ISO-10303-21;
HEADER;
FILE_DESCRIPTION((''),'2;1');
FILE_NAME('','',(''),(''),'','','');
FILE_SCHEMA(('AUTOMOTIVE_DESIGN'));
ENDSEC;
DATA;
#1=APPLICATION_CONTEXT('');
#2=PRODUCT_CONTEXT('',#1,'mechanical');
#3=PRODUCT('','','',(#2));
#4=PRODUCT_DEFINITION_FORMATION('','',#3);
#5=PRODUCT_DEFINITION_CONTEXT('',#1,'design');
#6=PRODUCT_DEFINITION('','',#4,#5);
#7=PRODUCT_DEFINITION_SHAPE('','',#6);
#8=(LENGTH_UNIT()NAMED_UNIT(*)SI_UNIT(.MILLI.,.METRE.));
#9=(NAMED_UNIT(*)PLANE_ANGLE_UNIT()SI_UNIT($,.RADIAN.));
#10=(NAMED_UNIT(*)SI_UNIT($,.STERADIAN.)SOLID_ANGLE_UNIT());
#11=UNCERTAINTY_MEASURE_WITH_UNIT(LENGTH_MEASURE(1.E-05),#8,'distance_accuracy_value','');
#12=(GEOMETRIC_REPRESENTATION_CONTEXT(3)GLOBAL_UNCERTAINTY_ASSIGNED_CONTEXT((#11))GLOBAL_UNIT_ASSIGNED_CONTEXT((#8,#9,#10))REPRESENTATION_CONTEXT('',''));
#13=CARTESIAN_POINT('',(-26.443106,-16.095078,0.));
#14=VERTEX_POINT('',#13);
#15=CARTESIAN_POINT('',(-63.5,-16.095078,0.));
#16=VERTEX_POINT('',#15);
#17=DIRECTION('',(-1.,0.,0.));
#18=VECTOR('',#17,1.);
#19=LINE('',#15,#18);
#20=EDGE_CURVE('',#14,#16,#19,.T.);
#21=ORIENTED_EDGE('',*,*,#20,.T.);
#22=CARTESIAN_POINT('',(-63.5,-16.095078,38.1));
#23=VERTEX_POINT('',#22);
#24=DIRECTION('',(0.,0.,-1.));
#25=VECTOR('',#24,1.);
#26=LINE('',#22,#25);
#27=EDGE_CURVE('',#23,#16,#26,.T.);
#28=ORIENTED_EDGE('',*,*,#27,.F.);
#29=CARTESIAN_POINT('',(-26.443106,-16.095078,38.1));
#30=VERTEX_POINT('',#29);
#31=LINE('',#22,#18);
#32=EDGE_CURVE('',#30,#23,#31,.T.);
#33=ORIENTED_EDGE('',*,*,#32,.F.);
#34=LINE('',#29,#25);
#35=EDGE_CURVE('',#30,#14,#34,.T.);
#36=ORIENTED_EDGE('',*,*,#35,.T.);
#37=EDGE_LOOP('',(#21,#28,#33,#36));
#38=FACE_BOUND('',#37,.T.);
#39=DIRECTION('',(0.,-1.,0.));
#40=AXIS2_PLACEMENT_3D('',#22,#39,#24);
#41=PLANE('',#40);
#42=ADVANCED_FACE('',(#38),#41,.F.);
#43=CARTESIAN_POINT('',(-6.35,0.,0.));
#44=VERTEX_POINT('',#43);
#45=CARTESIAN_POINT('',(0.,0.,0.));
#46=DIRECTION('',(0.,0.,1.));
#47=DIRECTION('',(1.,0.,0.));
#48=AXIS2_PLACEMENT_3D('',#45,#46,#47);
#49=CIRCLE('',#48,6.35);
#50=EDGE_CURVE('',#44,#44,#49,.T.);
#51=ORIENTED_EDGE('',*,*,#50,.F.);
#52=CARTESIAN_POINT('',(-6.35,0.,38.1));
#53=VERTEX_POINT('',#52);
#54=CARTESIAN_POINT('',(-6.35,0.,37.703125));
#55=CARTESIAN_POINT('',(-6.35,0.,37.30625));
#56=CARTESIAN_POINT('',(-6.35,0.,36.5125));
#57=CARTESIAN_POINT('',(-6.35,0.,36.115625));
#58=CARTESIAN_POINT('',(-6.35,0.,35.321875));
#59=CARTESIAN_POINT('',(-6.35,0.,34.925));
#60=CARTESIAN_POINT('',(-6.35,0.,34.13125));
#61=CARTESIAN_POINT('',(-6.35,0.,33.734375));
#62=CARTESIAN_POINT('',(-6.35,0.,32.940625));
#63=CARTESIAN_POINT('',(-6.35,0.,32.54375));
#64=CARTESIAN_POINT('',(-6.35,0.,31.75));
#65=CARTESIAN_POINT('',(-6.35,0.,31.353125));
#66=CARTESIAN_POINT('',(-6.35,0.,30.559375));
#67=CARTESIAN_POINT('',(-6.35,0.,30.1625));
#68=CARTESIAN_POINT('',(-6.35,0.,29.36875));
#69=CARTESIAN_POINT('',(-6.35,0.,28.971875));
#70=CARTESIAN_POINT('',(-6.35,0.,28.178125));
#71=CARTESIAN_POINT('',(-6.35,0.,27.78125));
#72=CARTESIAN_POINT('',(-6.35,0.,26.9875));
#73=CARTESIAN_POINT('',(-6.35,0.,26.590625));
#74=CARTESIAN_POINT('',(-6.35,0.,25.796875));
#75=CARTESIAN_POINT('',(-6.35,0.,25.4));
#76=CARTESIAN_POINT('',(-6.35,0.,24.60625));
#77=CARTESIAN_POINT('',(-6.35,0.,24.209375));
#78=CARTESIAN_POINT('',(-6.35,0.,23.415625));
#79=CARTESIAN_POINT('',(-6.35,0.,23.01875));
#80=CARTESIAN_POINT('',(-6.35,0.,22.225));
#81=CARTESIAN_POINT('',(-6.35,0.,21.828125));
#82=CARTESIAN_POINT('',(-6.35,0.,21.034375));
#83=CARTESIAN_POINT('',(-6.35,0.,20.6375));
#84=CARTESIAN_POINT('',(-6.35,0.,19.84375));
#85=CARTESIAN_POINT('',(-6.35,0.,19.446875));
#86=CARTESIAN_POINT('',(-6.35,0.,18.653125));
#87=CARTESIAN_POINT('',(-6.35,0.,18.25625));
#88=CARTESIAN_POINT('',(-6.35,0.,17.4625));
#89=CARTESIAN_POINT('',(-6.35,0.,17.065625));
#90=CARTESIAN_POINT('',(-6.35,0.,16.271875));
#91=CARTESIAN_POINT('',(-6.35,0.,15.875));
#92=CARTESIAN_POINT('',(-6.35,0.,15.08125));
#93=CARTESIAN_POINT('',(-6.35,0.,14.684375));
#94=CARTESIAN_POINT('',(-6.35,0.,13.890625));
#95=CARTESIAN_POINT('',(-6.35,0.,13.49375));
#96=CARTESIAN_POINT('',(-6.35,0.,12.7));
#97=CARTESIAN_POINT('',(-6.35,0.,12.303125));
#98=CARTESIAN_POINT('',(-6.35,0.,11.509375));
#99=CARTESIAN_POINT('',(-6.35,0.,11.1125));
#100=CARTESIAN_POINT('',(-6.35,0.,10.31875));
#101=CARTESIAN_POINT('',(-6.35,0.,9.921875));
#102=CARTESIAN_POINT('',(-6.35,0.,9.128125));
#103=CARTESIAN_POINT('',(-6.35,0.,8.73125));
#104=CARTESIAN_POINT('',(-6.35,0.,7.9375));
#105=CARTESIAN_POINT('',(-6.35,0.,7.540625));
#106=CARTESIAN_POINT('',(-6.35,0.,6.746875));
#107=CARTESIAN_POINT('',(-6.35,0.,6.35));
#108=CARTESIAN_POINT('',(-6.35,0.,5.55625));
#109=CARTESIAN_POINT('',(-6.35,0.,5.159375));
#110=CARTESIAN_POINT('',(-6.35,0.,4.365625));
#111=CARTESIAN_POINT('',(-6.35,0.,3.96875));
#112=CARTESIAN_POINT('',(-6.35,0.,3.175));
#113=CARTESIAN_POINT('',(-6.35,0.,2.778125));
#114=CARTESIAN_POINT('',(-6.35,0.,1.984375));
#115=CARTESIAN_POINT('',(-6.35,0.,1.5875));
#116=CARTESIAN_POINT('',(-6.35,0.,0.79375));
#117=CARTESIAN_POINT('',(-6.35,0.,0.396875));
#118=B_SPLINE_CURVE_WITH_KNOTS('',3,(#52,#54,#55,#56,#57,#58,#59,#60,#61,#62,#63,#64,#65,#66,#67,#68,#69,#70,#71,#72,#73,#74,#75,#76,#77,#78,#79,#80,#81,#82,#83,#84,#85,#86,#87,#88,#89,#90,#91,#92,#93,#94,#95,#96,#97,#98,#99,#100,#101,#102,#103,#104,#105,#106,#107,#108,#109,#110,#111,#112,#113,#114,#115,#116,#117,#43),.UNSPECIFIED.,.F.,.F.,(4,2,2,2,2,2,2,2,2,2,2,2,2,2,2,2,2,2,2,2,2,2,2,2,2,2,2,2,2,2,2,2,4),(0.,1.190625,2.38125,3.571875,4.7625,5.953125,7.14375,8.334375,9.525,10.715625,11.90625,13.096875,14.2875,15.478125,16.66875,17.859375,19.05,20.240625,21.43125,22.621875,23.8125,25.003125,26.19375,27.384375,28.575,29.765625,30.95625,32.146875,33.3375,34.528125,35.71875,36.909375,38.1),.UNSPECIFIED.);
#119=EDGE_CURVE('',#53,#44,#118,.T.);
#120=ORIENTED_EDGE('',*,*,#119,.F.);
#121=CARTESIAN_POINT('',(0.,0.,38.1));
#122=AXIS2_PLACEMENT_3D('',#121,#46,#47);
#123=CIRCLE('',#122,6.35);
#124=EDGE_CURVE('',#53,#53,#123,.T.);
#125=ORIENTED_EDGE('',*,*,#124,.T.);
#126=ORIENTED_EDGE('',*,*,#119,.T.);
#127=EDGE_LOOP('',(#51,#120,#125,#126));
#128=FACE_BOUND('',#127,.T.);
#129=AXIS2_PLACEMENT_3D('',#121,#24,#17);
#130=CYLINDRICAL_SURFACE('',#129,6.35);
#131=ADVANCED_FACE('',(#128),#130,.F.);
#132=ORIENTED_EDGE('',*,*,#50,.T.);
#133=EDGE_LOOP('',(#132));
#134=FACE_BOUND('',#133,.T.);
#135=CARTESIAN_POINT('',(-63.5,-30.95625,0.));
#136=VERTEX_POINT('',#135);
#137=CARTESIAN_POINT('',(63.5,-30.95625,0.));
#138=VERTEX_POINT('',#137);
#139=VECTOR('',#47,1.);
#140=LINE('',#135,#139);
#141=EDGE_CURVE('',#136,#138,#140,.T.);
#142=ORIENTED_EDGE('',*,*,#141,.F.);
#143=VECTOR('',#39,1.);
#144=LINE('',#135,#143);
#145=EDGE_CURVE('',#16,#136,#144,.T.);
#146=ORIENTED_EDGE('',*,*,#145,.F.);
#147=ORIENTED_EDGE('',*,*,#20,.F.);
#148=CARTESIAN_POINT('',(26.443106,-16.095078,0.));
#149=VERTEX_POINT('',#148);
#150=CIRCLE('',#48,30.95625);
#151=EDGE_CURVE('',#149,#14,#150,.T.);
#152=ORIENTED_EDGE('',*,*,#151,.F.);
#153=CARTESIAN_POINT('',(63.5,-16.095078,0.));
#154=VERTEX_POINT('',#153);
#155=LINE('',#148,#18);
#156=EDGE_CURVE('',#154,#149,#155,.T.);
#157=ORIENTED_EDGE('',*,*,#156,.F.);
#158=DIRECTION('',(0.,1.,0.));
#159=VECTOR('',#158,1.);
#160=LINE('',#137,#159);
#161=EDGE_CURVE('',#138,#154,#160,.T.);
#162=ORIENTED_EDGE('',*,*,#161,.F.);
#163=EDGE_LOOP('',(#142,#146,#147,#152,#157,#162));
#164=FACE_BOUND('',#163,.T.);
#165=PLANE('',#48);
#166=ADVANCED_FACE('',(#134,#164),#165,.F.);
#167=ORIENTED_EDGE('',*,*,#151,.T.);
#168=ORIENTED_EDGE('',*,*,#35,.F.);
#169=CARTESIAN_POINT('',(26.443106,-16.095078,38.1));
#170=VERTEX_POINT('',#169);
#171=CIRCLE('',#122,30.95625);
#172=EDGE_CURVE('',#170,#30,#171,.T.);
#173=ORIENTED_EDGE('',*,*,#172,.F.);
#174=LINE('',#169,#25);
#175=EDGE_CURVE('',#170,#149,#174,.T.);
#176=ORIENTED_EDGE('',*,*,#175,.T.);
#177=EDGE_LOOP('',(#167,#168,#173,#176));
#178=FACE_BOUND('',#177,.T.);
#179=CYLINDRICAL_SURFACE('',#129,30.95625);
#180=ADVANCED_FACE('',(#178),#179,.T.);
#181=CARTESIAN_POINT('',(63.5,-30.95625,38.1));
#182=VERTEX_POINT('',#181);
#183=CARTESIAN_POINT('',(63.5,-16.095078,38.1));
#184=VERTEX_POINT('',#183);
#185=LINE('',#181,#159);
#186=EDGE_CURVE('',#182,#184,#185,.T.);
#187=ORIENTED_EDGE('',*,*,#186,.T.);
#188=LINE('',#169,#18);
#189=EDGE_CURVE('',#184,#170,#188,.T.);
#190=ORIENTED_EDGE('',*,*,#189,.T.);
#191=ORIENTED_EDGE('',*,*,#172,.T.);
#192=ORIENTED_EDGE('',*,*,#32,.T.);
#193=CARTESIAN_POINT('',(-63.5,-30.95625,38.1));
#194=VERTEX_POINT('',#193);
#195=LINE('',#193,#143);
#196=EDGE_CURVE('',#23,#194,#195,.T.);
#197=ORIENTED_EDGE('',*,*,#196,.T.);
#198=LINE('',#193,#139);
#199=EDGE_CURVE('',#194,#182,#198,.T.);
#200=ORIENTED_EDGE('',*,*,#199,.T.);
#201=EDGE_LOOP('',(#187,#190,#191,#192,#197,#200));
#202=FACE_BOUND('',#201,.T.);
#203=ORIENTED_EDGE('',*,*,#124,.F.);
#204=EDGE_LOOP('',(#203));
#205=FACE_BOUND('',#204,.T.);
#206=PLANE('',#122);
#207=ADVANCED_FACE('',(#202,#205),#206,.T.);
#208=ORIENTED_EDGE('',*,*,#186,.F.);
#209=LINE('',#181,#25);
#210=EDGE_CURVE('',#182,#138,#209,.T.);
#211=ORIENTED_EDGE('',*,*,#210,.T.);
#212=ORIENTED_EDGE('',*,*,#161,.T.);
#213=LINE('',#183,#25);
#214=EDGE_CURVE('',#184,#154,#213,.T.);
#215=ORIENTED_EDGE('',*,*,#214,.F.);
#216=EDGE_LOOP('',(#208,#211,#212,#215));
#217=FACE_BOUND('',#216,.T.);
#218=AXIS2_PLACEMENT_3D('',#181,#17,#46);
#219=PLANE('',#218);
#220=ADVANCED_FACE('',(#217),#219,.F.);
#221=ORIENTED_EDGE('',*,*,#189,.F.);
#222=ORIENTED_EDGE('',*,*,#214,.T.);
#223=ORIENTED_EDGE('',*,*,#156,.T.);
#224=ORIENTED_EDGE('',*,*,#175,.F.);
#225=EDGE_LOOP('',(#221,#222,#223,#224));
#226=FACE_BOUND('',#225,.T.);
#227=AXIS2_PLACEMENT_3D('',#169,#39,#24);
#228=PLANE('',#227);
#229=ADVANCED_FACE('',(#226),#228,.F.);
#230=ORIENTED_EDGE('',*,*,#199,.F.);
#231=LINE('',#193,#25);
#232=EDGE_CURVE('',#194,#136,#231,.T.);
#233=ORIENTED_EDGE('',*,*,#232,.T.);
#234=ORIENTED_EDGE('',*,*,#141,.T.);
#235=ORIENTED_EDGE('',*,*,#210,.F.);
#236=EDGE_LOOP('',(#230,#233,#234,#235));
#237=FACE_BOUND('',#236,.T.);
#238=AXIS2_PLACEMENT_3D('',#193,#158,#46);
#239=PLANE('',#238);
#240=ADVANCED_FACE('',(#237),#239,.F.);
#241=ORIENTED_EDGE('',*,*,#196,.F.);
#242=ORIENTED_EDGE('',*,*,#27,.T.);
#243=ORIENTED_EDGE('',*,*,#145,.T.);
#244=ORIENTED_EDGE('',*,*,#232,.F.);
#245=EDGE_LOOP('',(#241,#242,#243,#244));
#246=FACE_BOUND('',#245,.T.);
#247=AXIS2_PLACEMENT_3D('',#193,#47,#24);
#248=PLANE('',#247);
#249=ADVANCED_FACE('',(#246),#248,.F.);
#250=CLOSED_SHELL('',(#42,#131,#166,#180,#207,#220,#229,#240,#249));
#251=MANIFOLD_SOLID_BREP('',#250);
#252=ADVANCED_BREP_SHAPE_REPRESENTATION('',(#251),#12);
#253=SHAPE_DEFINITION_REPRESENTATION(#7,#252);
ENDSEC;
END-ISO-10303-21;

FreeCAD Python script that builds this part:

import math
import FreeCAD as App
import Part
import Sketcher

V = App.Vector
Q = App.Units.Quantity

doc = App.newDocument("Part")
body = doc.addObject("PartDesign::Body", "Body")

sketch1 = body.newObject("Sketcher::SketchObject", "Sketch")
sketch1.AttachmentSupport = (doc.getObject("XY_Plane"), [""])
sketch1.MapMode = "FlatFace"
sketch1.addGeometry(Part.LineSegment(V(64, -16, 0), V(26, -16, 0)), False)
sketch1.addGeometry(Part.ArcOfCircle(Part.Circle(V(0, 0, 0), V(0, 0, 1), 31), math.radians(-31), math.radians(211)), False)
sketch1.addGeometry(Part.LineSegment(V(-26, -16, 0), V(-64, -16, 0)), False)
sketch1.addGeometry(Part.LineSegment(V(-64, -16, 0), V(-64, -31, 0)), False)
sketch1.addGeometry(Part.LineSegment(V(-64, -31, 0), V(64, -31, 0)), False)
sketch1.addGeometry(Part.LineSegment(V(64, -31, 0), V(64, -16, 0)), False)
sketch1.addGeometry(Part.Circle(V(0, 0, 0), V(0, 0, 1), 6), False)
sketch1.addConstraint(Sketcher.Constraint("Coincident", 0, 2, 1, 1))
sketch1.addConstraint(Sketcher.Constraint("Coincident", 1, 2, 2, 1))
sketch1.addConstraint(Sketcher.Constraint("Coincident", 2, 2, 3, 1))
sketch1.addConstraint(Sketcher.Constraint("Coincident", 3, 2, 4, 1))
sketch1.addConstraint(Sketcher.Constraint("Coincident", 4, 2, 5, 1))
sketch1.addConstraint(Sketcher.Constraint("Coincident", 5, 2, 0, 1))
sketch1.addConstraint(Sketcher.Constraint("Horizontal", 0))
sketch1.addConstraint(Sketcher.Constraint("Horizontal", 2))
sketch1.addConstraint(Sketcher.Constraint("Vertical", 3))
sketch1.addConstraint(Sketcher.Constraint("Horizontal", 4))
sketch1.addConstraint(Sketcher.Constraint("Vertical", 5))
sketch1.addConstraint(Sketcher.Constraint("Coincident", 1, 3, -1, 1))
sketch1.addConstraint(Sketcher.Constraint("Coincident", 6, 3, -1, 1))
sketch1.addConstraint(Sketcher.Constraint("Symmetric", 2, 2, 5, 2, -2))
sketch1.addConstraint(Sketcher.Constraint("Diameter", 6, Q("0.5 in")))
sketch1.addConstraint(Sketcher.Constraint("DistanceX", 4, 1, 4, 2, Q("5 in")))
sketch1.addConstraint(Sketcher.Constraint("Radius", 1, Q("1.21875 in")))
sketch1.addConstraint(Sketcher.Constraint("DistanceY", 3, 2, -1, 1, Q("1.21875 in")))
sketch1.addConstraint(Sketcher.Constraint("DistanceX", 0, 2, 0, 1, 37.056894))
pad1 = body.newObject("PartDesign::Pad", "Pad")
pad1.Profile = sketch1
pad1.Length = Q("1.5 in")

doc.recompute()
